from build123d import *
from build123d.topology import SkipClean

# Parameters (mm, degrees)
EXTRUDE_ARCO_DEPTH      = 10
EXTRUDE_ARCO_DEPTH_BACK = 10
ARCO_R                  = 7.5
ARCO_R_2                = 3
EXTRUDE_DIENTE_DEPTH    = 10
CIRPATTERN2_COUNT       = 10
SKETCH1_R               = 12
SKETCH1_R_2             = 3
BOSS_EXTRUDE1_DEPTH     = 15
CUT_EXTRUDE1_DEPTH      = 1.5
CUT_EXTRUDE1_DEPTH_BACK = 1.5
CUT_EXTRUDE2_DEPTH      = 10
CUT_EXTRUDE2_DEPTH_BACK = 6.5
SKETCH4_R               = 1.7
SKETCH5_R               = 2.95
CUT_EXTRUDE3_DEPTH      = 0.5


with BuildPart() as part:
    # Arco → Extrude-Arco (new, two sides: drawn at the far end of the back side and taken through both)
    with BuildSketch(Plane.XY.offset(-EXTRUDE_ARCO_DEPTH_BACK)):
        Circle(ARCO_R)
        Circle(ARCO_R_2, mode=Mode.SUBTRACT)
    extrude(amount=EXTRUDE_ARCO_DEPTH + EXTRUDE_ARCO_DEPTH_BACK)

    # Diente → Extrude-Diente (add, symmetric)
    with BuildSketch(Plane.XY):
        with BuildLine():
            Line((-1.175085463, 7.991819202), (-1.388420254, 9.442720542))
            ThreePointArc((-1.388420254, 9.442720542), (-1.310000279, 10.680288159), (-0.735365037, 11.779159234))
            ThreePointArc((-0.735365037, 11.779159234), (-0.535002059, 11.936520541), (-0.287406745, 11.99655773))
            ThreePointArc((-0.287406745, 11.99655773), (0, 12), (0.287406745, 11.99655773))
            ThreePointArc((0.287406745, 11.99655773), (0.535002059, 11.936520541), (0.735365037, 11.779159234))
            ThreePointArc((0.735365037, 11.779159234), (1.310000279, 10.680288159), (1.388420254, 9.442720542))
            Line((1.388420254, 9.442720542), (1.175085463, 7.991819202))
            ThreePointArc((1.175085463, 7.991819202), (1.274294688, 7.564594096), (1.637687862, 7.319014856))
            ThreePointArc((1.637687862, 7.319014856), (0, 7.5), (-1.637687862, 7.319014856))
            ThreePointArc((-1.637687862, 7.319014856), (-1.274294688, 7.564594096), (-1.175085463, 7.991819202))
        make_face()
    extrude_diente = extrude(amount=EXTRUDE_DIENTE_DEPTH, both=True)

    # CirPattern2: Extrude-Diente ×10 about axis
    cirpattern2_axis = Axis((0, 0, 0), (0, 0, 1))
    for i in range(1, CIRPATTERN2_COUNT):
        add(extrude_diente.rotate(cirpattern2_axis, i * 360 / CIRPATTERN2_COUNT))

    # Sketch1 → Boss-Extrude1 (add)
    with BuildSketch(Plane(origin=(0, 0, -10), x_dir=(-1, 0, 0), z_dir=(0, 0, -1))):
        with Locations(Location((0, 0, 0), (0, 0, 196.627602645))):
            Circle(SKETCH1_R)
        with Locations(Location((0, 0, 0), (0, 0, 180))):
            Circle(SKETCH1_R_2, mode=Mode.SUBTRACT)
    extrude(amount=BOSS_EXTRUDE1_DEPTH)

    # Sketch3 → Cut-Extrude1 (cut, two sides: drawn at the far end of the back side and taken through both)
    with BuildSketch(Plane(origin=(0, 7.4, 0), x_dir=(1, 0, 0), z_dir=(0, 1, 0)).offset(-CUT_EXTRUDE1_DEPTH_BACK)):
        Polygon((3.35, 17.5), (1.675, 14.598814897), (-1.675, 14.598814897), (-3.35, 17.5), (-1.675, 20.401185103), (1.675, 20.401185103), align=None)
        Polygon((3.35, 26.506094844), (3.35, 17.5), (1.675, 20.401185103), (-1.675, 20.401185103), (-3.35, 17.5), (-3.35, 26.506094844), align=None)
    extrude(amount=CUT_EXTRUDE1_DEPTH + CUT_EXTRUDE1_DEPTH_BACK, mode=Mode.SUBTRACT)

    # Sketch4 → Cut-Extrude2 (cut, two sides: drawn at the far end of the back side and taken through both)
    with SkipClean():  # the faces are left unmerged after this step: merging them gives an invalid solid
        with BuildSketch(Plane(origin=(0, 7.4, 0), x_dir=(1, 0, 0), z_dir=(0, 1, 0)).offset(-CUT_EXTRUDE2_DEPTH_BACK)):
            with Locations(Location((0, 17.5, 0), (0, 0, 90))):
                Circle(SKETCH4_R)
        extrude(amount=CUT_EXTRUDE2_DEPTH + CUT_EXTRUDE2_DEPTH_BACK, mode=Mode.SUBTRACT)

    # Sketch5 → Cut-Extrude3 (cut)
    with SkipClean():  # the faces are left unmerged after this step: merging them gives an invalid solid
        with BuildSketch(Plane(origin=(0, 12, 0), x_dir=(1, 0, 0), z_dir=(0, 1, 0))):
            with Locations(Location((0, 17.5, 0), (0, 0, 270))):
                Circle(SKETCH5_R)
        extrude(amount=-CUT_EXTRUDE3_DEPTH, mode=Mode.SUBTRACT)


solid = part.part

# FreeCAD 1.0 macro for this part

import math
import FreeCAD as App
import Part
import Sketcher
Q = App.Units.Quantity


def add_polygon(sketch, points):
    """Adds a closed chain of lines whose ends are joined by coincident constraints."""
    first, n = sketch.GeometryCount, len(points)
    for a, b in zip(points, points[1:] + points[:1]):
        sketch.addGeometry(Part.LineSegment(App.Vector(*a, 0), App.Vector(*b, 0)), False)
    for i in range(n):
        sketch.addConstraint(Sketcher.Constraint("Coincident", first + i, 2, first + (i + 1) % n, 1))

doc = App.newDocument("Part")
body = doc.addObject("PartDesign::Body", "Body")

sketch1 = body.newObject("Sketcher::SketchObject", "Sketch")
sketch1.AttachmentSupport = (doc.getObject("XY_Plane"), [""])
sketch1.MapMode = "FlatFace"
sketch1.addGeometry(Part.Circle(App.Vector(0, 0, 0), App.Vector(0, 0, 1), 7.5), False)
sketch1.addGeometry(Part.Circle(App.Vector(0, 0, 0), App.Vector(0, 0, 1), 3), False)
sketch1.addConstraint(Sketcher.Constraint("Coincident", 0, 3, -1, 1))
sketch1.addConstraint(Sketcher.Constraint("Coincident", 1, 3, -1, 1))
sketch1.addConstraint(Sketcher.Constraint("Diameter", 0, 15.0))
sketch1.addConstraint(Sketcher.Constraint("Diameter", 1, 6.0))
pad1 = body.newObject("PartDesign::Pad", "Pad")
pad1.Profile = sketch1
pad1.Type = "TwoLengths"
pad1.Length = 10
pad1.Length2 = 10

sketch2 = body.newObject("Sketcher::SketchObject", "Sketch001")
sketch2.AttachmentSupport = (doc.getObject("XY_Plane"), [""])
sketch2.MapMode = "FlatFace"
sketch2.addGeometry(Part.LineSegment(App.Vector(-1.39, 9.44, 0), App.Vector(-1.18, 7.99, 0)), False)
sketch2.addGeometry(Part.ArcOfCircle(Part.Circle(App.Vector(-1.77, 7.9, 0), App.Vector(0, 0, 1), 0.6), math.radians(-77), math.radians(8)), False)
sketch2.addGeometry(Part.ArcOfCircle(Part.Circle(App.Vector(0, 0, 0), App.Vector(0, 0, 1), 7.5), math.radians(77), math.radians(103)), False)
sketch2.addGeometry(Part.ArcOfCircle(Part.Circle(App.Vector(1.77, 7.9, 0), App.Vector(0, 0, 1), 0.6), math.radians(172), math.radians(257)), False)
sketch2.addGeometry(Part.LineSegment(App.Vector(1.18, 7.99, 0), App.Vector(1.39, 9.44, 0)), False)
sketch2.addGeometry(Part.ArcOfCircle(Part.Circle(App.Vector(-1.56, 9.88, 0), App.Vector(0, 0, 1), 2.98), math.radians(-8), math.radians(40)), False)
sketch2.addGeometry(Part.ArcOfCircle(Part.Circle(App.Vector(0.27, 11.4, 0), App.Vector(0, 0, 1), 0.6), math.radians(40), math.radians(89)), False)
sketch2.addGeometry(Part.ArcOfCircle(Part.Circle(App.Vector(0, 0, 0), App.Vector(0, 0, 1), 12), math.radians(88.63), math.radians(91.37)), False)
sketch2.addGeometry(Part.ArcOfCircle(Part.Circle(App.Vector(-0.27, 11.4, 0), App.Vector(0, 0, 1), 0.6), math.radians(91), math.radians(140)), False)
sketch2.addGeometry(Part.ArcOfCircle(Part.Circle(App.Vector(1.56, 9.88, 0), App.Vector(0, 0, 1), 2.98), math.radians(140), math.radians(188)), False)
sketch2.addConstraint(Sketcher.Constraint("Tangent", 0, 2, 1, 2))
sketch2.addConstraint(Sketcher.Constraint("Tangent", 1, 1, 2, 2))
sketch2.addConstraint(Sketcher.Constraint("Tangent", 2, 1, 3, 2))
sketch2.addConstraint(Sketcher.Constraint("Tangent", 3, 1, 4, 1))
sketch2.addConstraint(Sketcher.Constraint("Tangent", 4, 2, 5, 1))
sketch2.addConstraint(Sketcher.Constraint("Tangent", 5, 2, 6, 1))
sketch2.addConstraint(Sketcher.Constraint("Tangent", 6, 2, 7, 1))
sketch2.addConstraint(Sketcher.Constraint("Tangent", 7, 2, 8, 1))
sketch2.addConstraint(Sketcher.Constraint("Tangent", 8, 2, 9, 1))
sketch2.addConstraint(Sketcher.Constraint("Tangent", 9, 2, 0, 1))
sketch2.addConstraint(Sketcher.Constraint("Coincident", 2, 3, -1, 1))
sketch2.addConstraint(Sketcher.Constraint("Coincident", 7, 3, -1, 1))
sketch2.addConstraint(Sketcher.Constraint("Equal", 1, 3))
sketch2.addConstraint(Sketcher.Constraint("Equal", 3, 6))
sketch2.addConstraint(Sketcher.Constraint("Equal", 6, 8))
sketch2.addConstraint(Sketcher.Constraint("Equal", 5, 9))
sketch2.addConstraint(Sketcher.Constraint("Symmetric", 5, 3, 9, 3, -2))
sketch2.addConstraint(Sketcher.Constraint("Horizontal", 1, 3, 3, 3))
sketch2.addConstraint(Sketcher.Constraint("Radius", 7, 12.000001))
sketch2.addConstraint(Sketcher.Constraint("Radius", 1, 0.6))
sketch2.addConstraint(Sketcher.Constraint("Radius", 2, 7.5))
sketch2.addConstraint(Sketcher.Constraint("Radius", 5, 2.984513))
sketch2.addConstraint(Sketcher.Constraint("Distance", 0, 1.466501))
sketch2.addConstraint(Sketcher.Constraint("DistanceY", 3, 1, 4, 2, 1.450901))
sketch2.addConstraint(Sketcher.Constraint("DistanceX", 8, 3, 5, 2, 1.008401))
pad2 = body.newObject("PartDesign::Pad", "Pad001")
pad2.Profile = sketch2
pad2.Length = 20
pad2.Midplane = True
doc.recompute()

polarpattern = body.newObject("PartDesign::PolarPattern", "PolarPattern")
polarpattern.Originals = [pad2]
polarpattern.Axis = (doc.getObject("Z_Axis"), [""])
polarpattern.Angle = 360
polarpattern.Occurrences = 10
body.Tip = polarpattern

sketch3 = body.newObject("Sketcher::SketchObject", "Sketch002")
sketch3.AttachmentSupport = (doc.getObject("XY_Plane"), [""])
sketch3.MapMode = "FlatFace"
sketch3.AttachmentOffset = App.Placement(App.Vector(0, 0, -10), App.Rotation())
sketch3.addGeometry(Part.Circle(App.Vector(0, 0, 0), App.Vector(0, 0, 1), 12), False)
sketch3.addGeometry(Part.Circle(App.Vector(0, 0, 0), App.Vector(0, 0, 1), 3), False)
sketch3.addConstraint(Sketcher.Constraint("Coincident", 0, 3, -1, 1))
sketch3.addConstraint(Sketcher.Constraint("Coincident", 1, 3, -1, 1))
sketch3.addConstraint(Sketcher.Constraint("Diameter", 0, 24.0))
sketch3.addConstraint(Sketcher.Constraint("Diameter", 1, 6.0))
pad3 = body.newObject("PartDesign::Pad", "Pad002")
pad3.Profile = sketch3
pad3.Length = 15
pad3.Reversed = True

sketch4 = body.newObject("Sketcher::SketchObject", "Sketch003")
sketch4.AttachmentSupport = (doc.getObject("XZ_Plane"), [""])
sketch4.MapMode = "FlatFace"
sketch4.AttachmentOffset = App.Placement(App.Vector(0, 0, -7.4), App.Rotation())
add_polygon(sketch4, [(1.7, -14.6), (3.4, -17.5), (3.4, -26.5), (-3.4, -26.5), (-3.4, -17.5), (-1.7, -14.6)])
sketch4.addConstraint(Sketcher.Constraint("Vertical", 1))
sketch4.addConstraint(Sketcher.Constraint("Horizontal", 2))
sketch4.addConstraint(Sketcher.Constraint("Vertical", 3))
sketch4.addConstraint(Sketcher.Constraint("Horizontal", 5))
sketch4.addConstraint(Sketcher.Constraint("Symmetric", 0, 2, 3, 2, -2))
sketch4.addConstraint(Sketcher.Constraint("Equal", 0, 4))
sketch4.addConstraint(Sketcher.Constraint("Angle", 0, Q("-60 deg")))
sketch4.addConstraint(Sketcher.Constraint("DistanceX", 2, 2, 2, 1, 6.7))
sketch4.addConstraint(Sketcher.Constraint("DistanceX", 5, 1, 5, 2, 3.35))
sketch4.addConstraint(Sketcher.Constraint("DistanceY", 0, 2, -1, 1, 17.5))
sketch4.addConstraint(Sketcher.Constraint("DistanceY", 1, 2, 1, 1, 9.006095))
pocket1 = body.newObject("PartDesign::Pocket", "Pocket")
pocket1.Profile = sketch4
pocket1.Type = "TwoLengths"
pocket1.Length = 1.5
pocket1.Length2 = 1.5

sketch5 = body.newObject("Sketcher::SketchObject", "Sketch004")
sketch5.AttachmentSupport = (doc.getObject("XZ_Plane"), [""])
sketch5.MapMode = "FlatFace"
sketch5.AttachmentOffset = App.Placement(App.Vector(0, 0, -7.4), App.Rotation())
sketch5.addGeometry(Part.Circle(App.Vector(0, -17.5, 0), App.Vector(0, 0, 1), 1.7), False)
sketch5.addConstraint(Sketcher.Constraint("PointOnObject", 0, 3, -2))
sketch5.addConstraint(Sketcher.Constraint("Diameter", 0, 3.4))
sketch5.addConstraint(Sketcher.Constraint("DistanceY", 0, 3, -1, 1, 17.5))
pocket2 = body.newObject("PartDesign::Pocket", "Pocket001")
pocket2.Profile = sketch5
pocket2.Type = "TwoLengths"
pocket2.Length = 10
pocket2.Length2 = 6.5

sketch6 = body.newObject("Sketcher::SketchObject", "Sketch005")
sketch6.AttachmentSupport = (doc.getObject("XZ_Plane"), [""])
sketch6.MapMode = "FlatFace"
sketch6.AttachmentOffset = App.Placement(App.Vector(0, 0, -12), App.Rotation())
sketch6.addGeometry(Part.Circle(App.Vector(0, -17.5, 0), App.Vector(0, 0, 1), 3), False)
sketch6.addConstraint(Sketcher.Constraint("PointOnObject", 0, 3, -2))
sketch6.addConstraint(Sketcher.Constraint("Diameter", 0, 5.9))
sketch6.addConstraint(Sketcher.Constraint("DistanceY", 0, 3, -1, 1, 17.5))
pocket3 = body.newObject("PartDesign::Pocket", "Pocket002")
pocket3.Profile = sketch6
pocket3.Length = 0.5
pocket3.Reversed = True

doc.recompute()
